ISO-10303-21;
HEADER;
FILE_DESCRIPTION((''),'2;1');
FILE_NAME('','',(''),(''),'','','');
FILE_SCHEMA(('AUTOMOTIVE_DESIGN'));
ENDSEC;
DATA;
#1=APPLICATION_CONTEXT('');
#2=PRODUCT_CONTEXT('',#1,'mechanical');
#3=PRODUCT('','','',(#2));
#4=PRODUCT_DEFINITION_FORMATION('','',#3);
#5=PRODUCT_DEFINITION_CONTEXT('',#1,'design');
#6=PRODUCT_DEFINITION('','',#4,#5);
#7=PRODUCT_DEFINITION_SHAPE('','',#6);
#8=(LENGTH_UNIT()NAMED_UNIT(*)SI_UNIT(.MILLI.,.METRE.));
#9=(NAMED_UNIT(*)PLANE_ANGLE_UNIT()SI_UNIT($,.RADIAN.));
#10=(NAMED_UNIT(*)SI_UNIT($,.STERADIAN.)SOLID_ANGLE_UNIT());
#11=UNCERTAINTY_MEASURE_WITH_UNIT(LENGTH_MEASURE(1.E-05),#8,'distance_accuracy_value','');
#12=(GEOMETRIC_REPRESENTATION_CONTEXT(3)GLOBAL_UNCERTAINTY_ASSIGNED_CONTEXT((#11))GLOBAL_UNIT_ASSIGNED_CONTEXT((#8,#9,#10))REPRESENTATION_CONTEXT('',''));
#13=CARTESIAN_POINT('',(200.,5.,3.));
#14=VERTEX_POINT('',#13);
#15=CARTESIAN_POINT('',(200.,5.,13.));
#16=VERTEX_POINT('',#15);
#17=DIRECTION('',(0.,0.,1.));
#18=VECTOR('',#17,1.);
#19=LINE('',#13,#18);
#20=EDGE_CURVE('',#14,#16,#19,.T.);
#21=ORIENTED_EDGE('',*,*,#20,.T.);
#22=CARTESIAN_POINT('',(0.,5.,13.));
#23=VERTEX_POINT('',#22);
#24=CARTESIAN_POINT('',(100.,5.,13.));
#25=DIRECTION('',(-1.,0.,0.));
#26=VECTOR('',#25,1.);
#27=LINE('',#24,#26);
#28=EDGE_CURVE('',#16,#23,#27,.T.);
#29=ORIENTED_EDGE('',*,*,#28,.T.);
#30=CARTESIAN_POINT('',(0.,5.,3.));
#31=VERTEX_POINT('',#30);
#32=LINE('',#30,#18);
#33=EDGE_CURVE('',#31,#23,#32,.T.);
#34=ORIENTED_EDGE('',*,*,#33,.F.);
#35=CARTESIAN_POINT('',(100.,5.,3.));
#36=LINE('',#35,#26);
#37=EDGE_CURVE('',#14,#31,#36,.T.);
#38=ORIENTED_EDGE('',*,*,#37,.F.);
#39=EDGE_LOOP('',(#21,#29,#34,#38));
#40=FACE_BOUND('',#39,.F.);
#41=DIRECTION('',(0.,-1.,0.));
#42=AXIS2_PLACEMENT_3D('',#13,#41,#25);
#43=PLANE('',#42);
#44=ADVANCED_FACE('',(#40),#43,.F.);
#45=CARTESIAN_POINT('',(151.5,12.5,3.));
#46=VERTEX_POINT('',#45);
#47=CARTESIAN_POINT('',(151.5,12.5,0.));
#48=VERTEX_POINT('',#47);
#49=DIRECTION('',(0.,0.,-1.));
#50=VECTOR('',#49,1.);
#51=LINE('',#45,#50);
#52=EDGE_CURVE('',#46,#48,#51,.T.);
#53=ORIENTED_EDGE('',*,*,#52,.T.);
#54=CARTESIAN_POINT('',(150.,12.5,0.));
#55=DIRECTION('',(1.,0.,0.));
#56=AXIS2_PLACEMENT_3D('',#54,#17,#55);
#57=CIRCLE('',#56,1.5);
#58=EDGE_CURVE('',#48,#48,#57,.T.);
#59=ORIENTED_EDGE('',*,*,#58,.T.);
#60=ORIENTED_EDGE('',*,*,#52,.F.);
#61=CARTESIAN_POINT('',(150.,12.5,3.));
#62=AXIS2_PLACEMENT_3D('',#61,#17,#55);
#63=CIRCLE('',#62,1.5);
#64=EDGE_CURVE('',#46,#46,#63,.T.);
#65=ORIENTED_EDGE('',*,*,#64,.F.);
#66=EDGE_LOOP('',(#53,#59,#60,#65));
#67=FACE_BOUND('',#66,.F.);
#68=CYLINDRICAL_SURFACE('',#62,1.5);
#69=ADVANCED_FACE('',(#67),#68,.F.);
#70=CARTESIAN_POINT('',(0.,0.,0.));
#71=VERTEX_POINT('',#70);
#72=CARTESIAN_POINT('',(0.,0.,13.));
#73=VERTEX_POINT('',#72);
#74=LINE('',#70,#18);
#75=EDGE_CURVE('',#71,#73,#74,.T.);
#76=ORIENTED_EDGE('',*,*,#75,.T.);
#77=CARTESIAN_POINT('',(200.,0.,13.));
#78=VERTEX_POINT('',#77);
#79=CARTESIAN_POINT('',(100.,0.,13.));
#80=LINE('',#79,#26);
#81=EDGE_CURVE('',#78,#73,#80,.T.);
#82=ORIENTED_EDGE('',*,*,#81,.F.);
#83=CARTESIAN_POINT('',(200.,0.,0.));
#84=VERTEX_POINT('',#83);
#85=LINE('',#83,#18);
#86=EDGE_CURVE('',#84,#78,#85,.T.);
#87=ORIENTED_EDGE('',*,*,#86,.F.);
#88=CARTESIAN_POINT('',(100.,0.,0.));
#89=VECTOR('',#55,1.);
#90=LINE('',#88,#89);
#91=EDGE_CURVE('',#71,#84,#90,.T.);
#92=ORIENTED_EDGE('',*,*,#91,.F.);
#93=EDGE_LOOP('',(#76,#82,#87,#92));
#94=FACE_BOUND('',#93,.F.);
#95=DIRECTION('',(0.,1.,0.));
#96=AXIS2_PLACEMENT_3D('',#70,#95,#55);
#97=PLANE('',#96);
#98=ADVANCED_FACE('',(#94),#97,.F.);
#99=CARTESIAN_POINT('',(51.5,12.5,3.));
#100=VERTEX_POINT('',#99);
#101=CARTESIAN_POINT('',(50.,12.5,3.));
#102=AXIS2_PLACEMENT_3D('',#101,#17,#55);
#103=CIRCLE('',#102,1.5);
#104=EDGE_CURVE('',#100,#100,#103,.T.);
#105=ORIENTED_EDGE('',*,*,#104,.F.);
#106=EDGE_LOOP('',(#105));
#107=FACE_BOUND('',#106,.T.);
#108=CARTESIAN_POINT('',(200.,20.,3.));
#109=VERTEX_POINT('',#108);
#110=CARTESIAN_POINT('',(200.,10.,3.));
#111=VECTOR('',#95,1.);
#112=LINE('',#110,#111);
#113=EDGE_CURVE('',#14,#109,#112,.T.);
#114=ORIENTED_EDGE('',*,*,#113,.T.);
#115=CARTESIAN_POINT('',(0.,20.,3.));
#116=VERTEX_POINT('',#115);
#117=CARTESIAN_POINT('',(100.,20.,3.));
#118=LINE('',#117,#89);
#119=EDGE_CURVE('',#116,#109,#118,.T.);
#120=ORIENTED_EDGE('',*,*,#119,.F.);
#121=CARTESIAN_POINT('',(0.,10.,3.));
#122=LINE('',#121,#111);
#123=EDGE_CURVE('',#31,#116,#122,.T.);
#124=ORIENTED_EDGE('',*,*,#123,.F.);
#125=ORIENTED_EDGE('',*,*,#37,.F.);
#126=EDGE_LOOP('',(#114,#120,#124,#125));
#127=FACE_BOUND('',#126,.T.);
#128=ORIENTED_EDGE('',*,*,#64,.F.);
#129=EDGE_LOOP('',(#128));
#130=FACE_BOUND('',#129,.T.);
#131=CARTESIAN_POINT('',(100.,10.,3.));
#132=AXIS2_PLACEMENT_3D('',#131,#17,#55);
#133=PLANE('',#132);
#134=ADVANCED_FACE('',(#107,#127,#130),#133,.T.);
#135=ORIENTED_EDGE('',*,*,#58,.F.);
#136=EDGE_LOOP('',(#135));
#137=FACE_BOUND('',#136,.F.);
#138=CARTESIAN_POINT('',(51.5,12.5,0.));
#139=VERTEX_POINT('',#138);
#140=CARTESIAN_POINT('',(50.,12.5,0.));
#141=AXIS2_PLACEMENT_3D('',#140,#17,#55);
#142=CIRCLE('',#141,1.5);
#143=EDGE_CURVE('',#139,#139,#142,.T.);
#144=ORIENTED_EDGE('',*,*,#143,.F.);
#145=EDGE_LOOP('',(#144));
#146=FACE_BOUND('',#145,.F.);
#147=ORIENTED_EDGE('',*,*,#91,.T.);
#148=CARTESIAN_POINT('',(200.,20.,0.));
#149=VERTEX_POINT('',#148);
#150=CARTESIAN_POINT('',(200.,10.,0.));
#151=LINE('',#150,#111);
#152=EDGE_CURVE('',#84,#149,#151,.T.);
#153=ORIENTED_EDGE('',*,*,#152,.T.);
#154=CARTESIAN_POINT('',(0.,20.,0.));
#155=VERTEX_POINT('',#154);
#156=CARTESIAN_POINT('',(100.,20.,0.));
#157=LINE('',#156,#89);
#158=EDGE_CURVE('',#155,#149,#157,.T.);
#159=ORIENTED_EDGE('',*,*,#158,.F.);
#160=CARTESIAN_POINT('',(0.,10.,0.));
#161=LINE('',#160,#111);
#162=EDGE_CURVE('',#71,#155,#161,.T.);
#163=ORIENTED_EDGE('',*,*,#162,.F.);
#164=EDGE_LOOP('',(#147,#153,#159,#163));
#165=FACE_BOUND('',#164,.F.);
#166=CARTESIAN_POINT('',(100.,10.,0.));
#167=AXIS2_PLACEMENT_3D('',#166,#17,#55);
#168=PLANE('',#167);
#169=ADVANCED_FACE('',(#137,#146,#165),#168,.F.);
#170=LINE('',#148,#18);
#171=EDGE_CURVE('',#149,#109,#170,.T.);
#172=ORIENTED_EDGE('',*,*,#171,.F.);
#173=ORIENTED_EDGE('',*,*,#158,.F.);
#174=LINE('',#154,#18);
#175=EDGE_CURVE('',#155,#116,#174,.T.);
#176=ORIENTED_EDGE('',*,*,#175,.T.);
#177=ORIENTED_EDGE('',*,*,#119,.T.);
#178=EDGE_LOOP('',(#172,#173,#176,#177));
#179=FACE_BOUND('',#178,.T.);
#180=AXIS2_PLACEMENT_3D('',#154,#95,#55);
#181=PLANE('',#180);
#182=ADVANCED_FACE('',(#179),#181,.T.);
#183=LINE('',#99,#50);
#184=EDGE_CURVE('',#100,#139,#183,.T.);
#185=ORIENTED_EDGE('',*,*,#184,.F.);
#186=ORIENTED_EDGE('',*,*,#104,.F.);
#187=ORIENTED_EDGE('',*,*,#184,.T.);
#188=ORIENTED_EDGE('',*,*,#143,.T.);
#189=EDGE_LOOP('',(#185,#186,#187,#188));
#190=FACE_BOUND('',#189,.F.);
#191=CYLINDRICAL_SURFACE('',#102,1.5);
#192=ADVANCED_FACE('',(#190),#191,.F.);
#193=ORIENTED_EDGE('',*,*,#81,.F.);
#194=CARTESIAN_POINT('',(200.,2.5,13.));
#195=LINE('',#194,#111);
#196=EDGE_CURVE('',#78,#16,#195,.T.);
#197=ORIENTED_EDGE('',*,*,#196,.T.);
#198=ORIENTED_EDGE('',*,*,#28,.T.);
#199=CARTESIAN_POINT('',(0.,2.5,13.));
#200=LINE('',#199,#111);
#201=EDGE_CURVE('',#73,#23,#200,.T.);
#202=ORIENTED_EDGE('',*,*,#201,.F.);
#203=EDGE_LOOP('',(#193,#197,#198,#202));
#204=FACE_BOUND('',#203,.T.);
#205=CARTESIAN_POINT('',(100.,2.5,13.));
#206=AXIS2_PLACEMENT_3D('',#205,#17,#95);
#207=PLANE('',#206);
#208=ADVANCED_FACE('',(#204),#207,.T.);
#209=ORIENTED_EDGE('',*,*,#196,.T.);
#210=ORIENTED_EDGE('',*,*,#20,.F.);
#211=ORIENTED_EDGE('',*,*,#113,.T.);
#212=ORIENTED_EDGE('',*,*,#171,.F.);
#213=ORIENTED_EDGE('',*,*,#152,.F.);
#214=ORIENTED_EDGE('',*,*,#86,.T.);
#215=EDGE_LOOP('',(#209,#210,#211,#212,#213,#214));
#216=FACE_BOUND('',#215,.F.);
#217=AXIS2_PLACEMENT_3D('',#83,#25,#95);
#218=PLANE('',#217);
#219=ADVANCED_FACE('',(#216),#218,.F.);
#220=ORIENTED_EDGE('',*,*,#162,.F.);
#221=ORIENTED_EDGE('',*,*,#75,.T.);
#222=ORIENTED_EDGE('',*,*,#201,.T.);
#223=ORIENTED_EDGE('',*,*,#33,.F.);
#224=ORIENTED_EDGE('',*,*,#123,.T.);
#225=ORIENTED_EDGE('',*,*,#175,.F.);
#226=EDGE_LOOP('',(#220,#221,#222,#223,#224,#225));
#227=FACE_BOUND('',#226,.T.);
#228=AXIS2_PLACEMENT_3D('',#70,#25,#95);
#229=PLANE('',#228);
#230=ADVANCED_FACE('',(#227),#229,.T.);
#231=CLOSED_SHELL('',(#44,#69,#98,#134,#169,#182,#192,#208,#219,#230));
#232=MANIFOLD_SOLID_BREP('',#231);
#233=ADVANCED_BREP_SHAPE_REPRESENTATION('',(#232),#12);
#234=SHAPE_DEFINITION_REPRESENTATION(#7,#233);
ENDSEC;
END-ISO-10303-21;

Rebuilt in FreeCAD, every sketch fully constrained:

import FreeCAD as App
import Part
import Sketcher

V = App.Vector
Q = App.Units.Quantity


def add_polygon(sketch, points):
    """Adds a closed chain of lines whose ends are joined by coincident constraints."""
    first, n = sketch.GeometryCount, len(points)
    for a, b in zip(points, points[1:] + points[:1]):
        sketch.addGeometry(Part.LineSegment(App.Vector(*a, 0), App.Vector(*b, 0)), False)
    for i in range(n):
        sketch.addConstraint(Sketcher.Constraint("Coincident", first + i, 2, first + (i + 1) % n, 1))

doc = App.newDocument("Part")
body = doc.addObject("PartDesign::Body", "Body")
body.AllowCompound = True

# Sketch on XY plane
sketch1 = body.newObject("Sketcher::SketchObject", "Sketch")
sketch1.AttachmentSupport = (doc.getObject("XY_Plane"), [""])
sketch1.MapMode = "FlatFace"
sketch1.AttachmentOffset = App.Placement(V(0, 0, 3), App.Rotation())
sketch1.addGeometry([
    Part.Circle(V(50, 12.5, 0), V(0, 0, 1), 1.5),
    Part.Circle(V(150, 12.5, 0), V(0, 0, 1), 1.5),
], False)
sketch1.addConstraint([
    Sketcher.Constraint("Equal", 0, 1),
    Sketcher.Constraint("Horizontal", 0, 3, 1, 3),
    Sketcher.Constraint("Diameter", 0, Q("3 mm")),
    Sketcher.Constraint("DistanceX", -1, 1, 0, 3, Q("50 mm")),
    Sketcher.Constraint("DistanceX", -1, 1, 1, 3, Q("150 mm")),
    Sketcher.Constraint("DistanceY", -1, 1, 0, 3, Q("12.5 mm")),
])
pad1 = body.newObject("PartDesign::Pad", "Pad")
pad1.Profile = sketch1
pad1.Length = 10
pad1.Reversed = True
body2 = doc.addObject("PartDesign::Body", "Body001")

# Sketch on XY plane
sketch2 = body2.newObject("Sketcher::SketchObject", "Sketch001")
sketch2.AttachmentSupport = (doc.getObject("XY_Plane001"), [""])
sketch2.MapMode = "FlatFace"
add_polygon(sketch2, [(0, 20), (0, 0), (200, 0), (200, 20)])  # lines 0-3
sketch2.addConstraint([
    Sketcher.Constraint("Vertical", 0),
    Sketcher.Constraint("Horizontal", 1),
    Sketcher.Constraint("Vertical", 2),
    Sketcher.Constraint("Horizontal", 3),
    Sketcher.Constraint("Coincident", 0, 2, -1, 1),
    Sketcher.Constraint("DistanceX", 1, 1, 1, 2, Q("200 mm")),
    Sketcher.Constraint("DistanceY", 0, 2, 0, 1, Q("20 mm")),
])
pad2 = body2.newObject("PartDesign::Pad", "Pad001")
pad2.Profile = sketch2
pad2.Length = 3
doc.recompute()

boolean = body2.newObject("PartDesign::Boolean", "Boolean")
boolean.Type = "Cut"
boolean.addObjects([body])
body3 = doc.addObject("PartDesign::Body", "Body002")

# Sketch on XY plane
sketch3 = body3.newObject("Sketcher::SketchObject", "Sketch002")
sketch3.AttachmentSupport = (doc.getObject("XY_Plane002"), [""])
sketch3.MapMode = "FlatFace"
sketch3.AttachmentOffset = App.Placement(V(0, 0, 3), App.Rotation())
add_polygon(sketch3, [(0, 0), (200, 0), (200, 5), (0, 5)])  # lines 0-3
sketch3.addConstraint([
    Sketcher.Constraint("Horizontal", 0),
    Sketcher.Constraint("Vertical", 1),
    Sketcher.Constraint("Horizontal", 2),
    Sketcher.Constraint("Vertical", 3),
    Sketcher.Constraint("Coincident", 3, 2, -1, 1),
    Sketcher.Constraint("DistanceX", 0, 1, 0, 2, Q("200 mm")),
    Sketcher.Constraint("DistanceY", 1, 1, 1, 2, Q("5 mm")),
])
pad3 = body3.newObject("PartDesign::Pad", "Pad002")
pad3.Profile = sketch3
pad3.Length = 10
doc.recompute()

boolean2 = body3.newObject("PartDesign::Boolean", "Boolean001")
boolean2.Type = "Fuse"
boolean2.addObjects([body2])

doc.recompute()
